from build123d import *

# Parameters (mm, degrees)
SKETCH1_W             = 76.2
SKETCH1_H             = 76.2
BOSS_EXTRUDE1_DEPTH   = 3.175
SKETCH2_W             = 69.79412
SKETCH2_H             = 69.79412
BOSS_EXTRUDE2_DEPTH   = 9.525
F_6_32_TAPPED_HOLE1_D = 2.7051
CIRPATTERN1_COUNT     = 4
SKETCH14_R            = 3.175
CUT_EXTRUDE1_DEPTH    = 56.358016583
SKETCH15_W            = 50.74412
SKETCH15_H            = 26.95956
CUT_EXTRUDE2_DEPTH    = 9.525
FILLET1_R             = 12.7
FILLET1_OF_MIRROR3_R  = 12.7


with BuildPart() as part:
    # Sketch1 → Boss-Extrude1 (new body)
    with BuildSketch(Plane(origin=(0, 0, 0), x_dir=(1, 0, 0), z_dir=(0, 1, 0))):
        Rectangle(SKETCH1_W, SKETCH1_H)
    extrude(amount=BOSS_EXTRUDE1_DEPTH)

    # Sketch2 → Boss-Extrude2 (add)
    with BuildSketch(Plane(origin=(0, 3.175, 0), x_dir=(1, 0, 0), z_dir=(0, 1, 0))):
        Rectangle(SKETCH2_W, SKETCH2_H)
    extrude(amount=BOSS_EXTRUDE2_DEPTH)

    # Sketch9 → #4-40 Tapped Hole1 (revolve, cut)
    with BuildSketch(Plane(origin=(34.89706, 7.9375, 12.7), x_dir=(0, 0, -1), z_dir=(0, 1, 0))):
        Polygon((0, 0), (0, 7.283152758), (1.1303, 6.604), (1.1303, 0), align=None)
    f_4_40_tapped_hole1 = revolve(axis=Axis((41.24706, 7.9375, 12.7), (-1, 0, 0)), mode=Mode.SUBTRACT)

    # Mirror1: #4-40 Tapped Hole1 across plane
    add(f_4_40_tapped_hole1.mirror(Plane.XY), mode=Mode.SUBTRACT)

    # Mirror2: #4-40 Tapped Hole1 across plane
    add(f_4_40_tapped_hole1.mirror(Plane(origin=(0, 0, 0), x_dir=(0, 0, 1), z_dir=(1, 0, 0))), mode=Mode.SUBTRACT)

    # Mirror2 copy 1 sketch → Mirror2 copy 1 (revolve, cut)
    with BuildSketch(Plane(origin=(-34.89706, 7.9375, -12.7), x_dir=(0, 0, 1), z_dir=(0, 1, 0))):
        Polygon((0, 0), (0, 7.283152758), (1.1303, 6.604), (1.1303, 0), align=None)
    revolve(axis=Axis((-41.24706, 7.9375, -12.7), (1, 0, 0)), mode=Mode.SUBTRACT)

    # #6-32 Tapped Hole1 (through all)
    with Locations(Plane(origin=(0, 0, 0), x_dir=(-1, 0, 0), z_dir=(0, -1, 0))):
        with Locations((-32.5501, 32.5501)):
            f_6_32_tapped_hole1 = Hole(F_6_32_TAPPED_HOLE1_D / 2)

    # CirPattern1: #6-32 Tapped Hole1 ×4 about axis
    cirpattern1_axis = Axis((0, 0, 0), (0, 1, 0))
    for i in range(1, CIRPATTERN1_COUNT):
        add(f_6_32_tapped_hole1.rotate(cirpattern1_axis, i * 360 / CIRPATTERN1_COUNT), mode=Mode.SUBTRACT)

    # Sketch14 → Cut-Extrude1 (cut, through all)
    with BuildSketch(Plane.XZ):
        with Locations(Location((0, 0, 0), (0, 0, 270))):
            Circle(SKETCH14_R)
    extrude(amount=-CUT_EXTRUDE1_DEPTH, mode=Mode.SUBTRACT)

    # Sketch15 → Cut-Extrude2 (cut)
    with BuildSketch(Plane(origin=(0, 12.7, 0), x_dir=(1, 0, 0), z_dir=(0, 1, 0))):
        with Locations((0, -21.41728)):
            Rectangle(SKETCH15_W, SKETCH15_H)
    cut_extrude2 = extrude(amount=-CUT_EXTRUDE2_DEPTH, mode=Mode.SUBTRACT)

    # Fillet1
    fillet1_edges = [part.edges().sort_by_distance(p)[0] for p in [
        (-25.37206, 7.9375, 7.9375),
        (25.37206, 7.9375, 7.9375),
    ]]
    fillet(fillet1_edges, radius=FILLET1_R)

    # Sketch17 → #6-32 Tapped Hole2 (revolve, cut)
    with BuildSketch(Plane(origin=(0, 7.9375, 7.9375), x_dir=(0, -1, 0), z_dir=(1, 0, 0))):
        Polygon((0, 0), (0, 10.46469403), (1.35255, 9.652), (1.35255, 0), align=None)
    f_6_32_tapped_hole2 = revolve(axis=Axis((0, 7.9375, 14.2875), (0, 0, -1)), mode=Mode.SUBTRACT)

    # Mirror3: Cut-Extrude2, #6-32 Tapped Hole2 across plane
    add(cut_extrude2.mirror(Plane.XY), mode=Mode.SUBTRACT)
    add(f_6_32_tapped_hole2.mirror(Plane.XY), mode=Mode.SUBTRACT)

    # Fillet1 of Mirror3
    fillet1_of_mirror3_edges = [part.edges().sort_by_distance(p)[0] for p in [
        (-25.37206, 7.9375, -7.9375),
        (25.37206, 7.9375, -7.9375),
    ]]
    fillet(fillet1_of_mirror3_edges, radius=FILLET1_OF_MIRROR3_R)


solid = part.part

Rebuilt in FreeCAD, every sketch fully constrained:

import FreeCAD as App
import Part
import Sketcher
from FreeCAD import Vector
Q = App.Units.Quantity


def edges_at(feature, points):
    """Names of the edges that pass closest to the given points."""
    edges = feature.Shape.Edges
    near = lambda p: min(range(len(edges)), key=lambda i: edges[i].distToShape(Part.Vertex(*p))[0])
    return sorted({f"Edge{near(p) + 1}" for p in points})

doc = App.newDocument("Part")
body = doc.addObject("PartDesign::Body", "Body")

sketch1 = body.newObject("Sketcher::SketchObject", "Sketch")
sketch1.AttachmentSupport = (doc.getObject("XZ_Plane"), [""])
sketch1.MapMode = "FlatFace"
sketch1.addGeometry([
    Part.LineSegment(Vector(-38.1, -38.1, 0), Vector(-38.1, 38.1, 0)),
    Part.LineSegment(Vector(-38.1, 38.1, 0), Vector(38.1, 38.1, 0)),
    Part.LineSegment(Vector(38.1, 38.1, 0), Vector(38.1, -38.1, 0)),
    Part.LineSegment(Vector(38.1, -38.1, 0), Vector(-38.1, -38.1, 0)),
], False)
sketch1.addConstraint([
    Sketcher.Constraint("Coincident", 0, 2, 1, 1),
    Sketcher.Constraint("Coincident", 1, 2, 2, 1),
    Sketcher.Constraint("Coincident", 2, 2, 3, 1),
    Sketcher.Constraint("Coincident", 3, 2, 0, 1),
    Sketcher.Constraint("Vertical", 0),
    Sketcher.Constraint("Horizontal", 1),
    Sketcher.Constraint("Vertical", 2),
    Sketcher.Constraint("Horizontal", 3),
    Sketcher.Constraint("Symmetric", 0, 2, 2, 2, -1, 1),
    Sketcher.Constraint("Equal", 3, 0),
    Sketcher.Constraint("DistanceX", 1, 1, 1, 2, Q("3 in")),
])
pad1 = body.newObject("PartDesign::Pad", "Pad")
pad1.Profile = sketch1
pad1.Length = Q("0.125 in")
pad1.Reversed = True

sketch2 = body.newObject("Sketcher::SketchObject", "Sketch001")
sketch2.AttachmentSupport = (doc.getObject("XZ_Plane"), [""])
sketch2.MapMode = "FlatFace"
sketch2.AttachmentOffset = App.Placement(Vector(0, 0, -0.125 * 25.4), App.Rotation())
sketch2.addGeometry([
    Part.LineSegment(Vector(-34.89706, -34.89706, 0), Vector(-34.89706, 34.89706, 0)),
    Part.LineSegment(Vector(-34.89706, 34.89706, 0), Vector(34.89706, 34.89706, 0)),
    Part.LineSegment(Vector(34.89706, 34.89706, 0), Vector(34.89706, -34.89706, 0)),
    Part.LineSegment(Vector(34.89706, -34.89706, 0), Vector(-34.89706, -34.89706, 0)),
], False)
sketch2.addConstraint([
    Sketcher.Constraint("Coincident", 0, 2, 1, 1),
    Sketcher.Constraint("Coincident", 1, 2, 2, 1),
    Sketcher.Constraint("Coincident", 2, 2, 3, 1),
    Sketcher.Constraint("Coincident", 3, 2, 0, 1),
    Sketcher.Constraint("Vertical", 0),
    Sketcher.Constraint("Horizontal", 1),
    Sketcher.Constraint("Vertical", 2),
    Sketcher.Constraint("Horizontal", 3),
    Sketcher.Constraint("Symmetric", 0, 2, 2, 2, -1, 1),
    Sketcher.Constraint("Equal", 3, 0),
    Sketcher.Constraint("DistanceX", 1, 1, 1, 2, Q("2.7478 in")),
])
pad2 = body.newObject("PartDesign::Pad", "Pad001")
pad2.Profile = sketch2
pad2.Length = Q("0.375 in")
pad2.Reversed = True

sketch3 = body.newObject("Sketcher::SketchObject", "Sketch002")
sketch3.AttachmentSupport = (doc.getObject("XZ_Plane"), [""])
sketch3.MapMode = "FlatFace"
sketch3.AttachmentOffset = App.Placement(Vector(0, 0, -0.3125 * 25.4), App.Rotation())
sketch3.addGeometry([
    Part.LineSegment(Vector(27.613907, 12.7, 0), Vector(34.89706, 12.7, 0)),
    Part.LineSegment(Vector(34.89706, 12.7, 0), Vector(34.89706, 11.5697, 0)),
    Part.LineSegment(Vector(34.89706, 11.5697, 0), Vector(28.29306, 11.5697, 0)),
    Part.LineSegment(Vector(28.29306, 11.5697, 0), Vector(27.613907, 12.7, 0)),
], False)
sketch3.addGeometry(Part.LineSegment(Vector(34.89706, 12.7, 0), Vector(27.613907, 12.7, 0)), True)
sketch3.addConstraint([
    Sketcher.Constraint("Coincident", 0, 2, 1, 1),
    Sketcher.Constraint("Coincident", 1, 2, 2, 1),
    Sketcher.Constraint("Coincident", 2, 2, 3, 1),
    Sketcher.Constraint("Coincident", 3, 2, 0, 1),
    Sketcher.Constraint("Horizontal", 0),
    Sketcher.Constraint("Vertical", 1),
    Sketcher.Constraint("Horizontal", 2),
    Sketcher.Constraint("Horizontal", 4),
    Sketcher.Constraint("Coincident", 4, 1, 0, 2),
    Sketcher.Constraint("Equal", 0, 4),
    Sketcher.Constraint("Angle", 3, Q("121 deg")),
    Sketcher.Constraint("DistanceX", 2, 2, 2, 1, Q("0.26 in")),
    Sketcher.Constraint("DistanceY", -1, 1, 0, 2, Q("0.5 in")),
    Sketcher.Constraint("DistanceY", 1, 2, 1, 1, Q("0.0445 in")),
    Sketcher.Constraint("DistanceX", -1, 1, 0, 2, Q("1.3739 in")),
])
groove = body.newObject("PartDesign::Groove", "Groove")
groove.Profile = sketch3
groove.ReferenceAxis = (sketch3, ["Axis0"])
groove.Angle = 360
doc.recompute()

mirrored = body.newObject("PartDesign::Mirrored", "Mirrored")
mirrored.Originals = [groove]
mirrored.MirrorPlane = (doc.getObject("XY_Plane"), [""])
body.Tip = mirrored
doc.recompute()

mirrored2 = body.newObject("PartDesign::Mirrored", "Mirrored001")
mirrored2.Originals = [groove]
mirrored2.MirrorPlane = (doc.getObject("YZ_Plane"), [""])
body.Tip = mirrored2

sketch4 = body.newObject("Sketcher::SketchObject", "Sketch003")
sketch4.AttachmentSupport = (doc.getObject("XZ_Plane"), [""])
sketch4.MapMode = "FlatFace"
sketch4.AttachmentOffset = App.Placement(Vector(0, 0, -0.3125 * 25.4), App.Rotation())
sketch4.addGeometry([
    Part.LineSegment(Vector(-27.613907, -12.7, 0), Vector(-34.89706, -12.7, 0)),
    Part.LineSegment(Vector(-34.89706, -12.7, 0), Vector(-34.89706, -11.5697, 0)),
    Part.LineSegment(Vector(-34.89706, -11.5697, 0), Vector(-28.29306, -11.5697, 0)),
    Part.LineSegment(Vector(-28.29306, -11.5697, 0), Vector(-27.613907, -12.7, 0)),
], False)
sketch4.addGeometry(Part.LineSegment(Vector(-34.89706, -12.7, 0), Vector(-27.613907, -12.7, 0)), True)
sketch4.addConstraint([
    Sketcher.Constraint("Coincident", 0, 2, 1, 1),
    Sketcher.Constraint("Coincident", 1, 2, 2, 1),
    Sketcher.Constraint("Coincident", 2, 2, 3, 1),
    Sketcher.Constraint("Coincident", 3, 2, 0, 1),
    Sketcher.Constraint("Horizontal", 0),
    Sketcher.Constraint("Vertical", 1),
    Sketcher.Constraint("Horizontal", 2),
    Sketcher.Constraint("Horizontal", 4),
    Sketcher.Constraint("Coincident", 4, 1, 0, 2),
    Sketcher.Constraint("Equal", 0, 4),
    Sketcher.Constraint("Angle", 3, Q("-59 deg")),
    Sketcher.Constraint("DistanceX", 2, 1, 2, 2, Q("0.26 in")),
    Sketcher.Constraint("DistanceY", 0, 2, -1, 1, Q("0.5 in")),
    Sketcher.Constraint("DistanceY", 1, 1, 1, 2, Q("0.0445 in")),
    Sketcher.Constraint("DistanceX", 0, 2, -1, 1, Q("1.3739 in")),
])
groove2 = body.newObject("PartDesign::Groove", "Groove001")
groove2.Profile = sketch4
groove2.ReferenceAxis = (sketch4, ["Axis0"])
groove2.Angle = 360

sketch5 = body.newObject("Sketcher::SketchObject", "Sketch004")
sketch5.AttachmentSupport = (doc.getObject("XZ_Plane"), [""])
sketch5.MapMode = "FlatFace"
sketch5.addGeometry(Part.Circle(Vector(32.5501, -32.5501, 0), Vector(0, 0, 1), 1.35255), False)
sketch5.addConstraint([
    Sketcher.Constraint("Diameter", 0, Q("0.1065 in")),
    Sketcher.Constraint("DistanceX", -1, 1, 0, 3, Q("1.2815 in")),
    Sketcher.Constraint("DistanceY", 0, 3, -1, 1, Q("1.2815 in")),
])
doc.recompute()
hole = body.newObject("PartDesign::Hole", "Hole")
hole.Profile = sketch5
hole.ThreadType = "None"
hole.Diameter = Q("0.1065 in")
hole.DepthType = "ThroughAll"
doc.recompute()

polarpattern = body.newObject("PartDesign::PolarPattern", "PolarPattern")
polarpattern.Originals = [hole]
polarpattern.Axis = (doc.getObject("Y_Axis"), [""])
polarpattern.Angle = 360
polarpattern.Occurrences = 4
body.Tip = polarpattern

sketch6 = body.newObject("Sketcher::SketchObject", "Sketch005")
sketch6.AttachmentSupport = (doc.getObject("XZ_Plane"), [""])
sketch6.MapMode = "FlatFace"
sketch6.addGeometry(Part.Circle(Vector(0, 0, 0), Vector(0, 0, 1), 3.175), False)
sketch6.addConstraint([
    Sketcher.Constraint("Coincident", 0, 3, -1, 1),
    Sketcher.Constraint("Diameter", 0, Q("0.25 in")),
])
pocket1 = body.newObject("PartDesign::Pocket", "Pocket")
pocket1.Profile = sketch6
pocket1.Type = "ThroughAll"

sketch7 = body.newObject("Sketcher::SketchObject", "Sketch006")
sketch7.AttachmentSupport = (doc.getObject("XZ_Plane"), [""])
sketch7.MapMode = "FlatFace"
sketch7.AttachmentOffset = App.Placement(Vector(0, 0, -0.5 * 25.4), App.Rotation())
sketch7.addGeometry([
    Part.LineSegment(Vector(-25.37206, 7.9375, 0), Vector(-25.37206, 34.89706, 0)),
    Part.LineSegment(Vector(-25.37206, 34.89706, 0), Vector(25.37206, 34.89706, 0)),
    Part.LineSegment(Vector(25.37206, 34.89706, 0), Vector(25.37206, 7.9375, 0)),
    Part.LineSegment(Vector(25.37206, 7.9375, 0), Vector(-25.37206, 7.9375, 0)),
], False)
sketch7.addConstraint([
    Sketcher.Constraint("Coincident", 0, 2, 1, 1),
    Sketcher.Constraint("Coincident", 1, 2, 2, 1),
    Sketcher.Constraint("Coincident", 2, 2, 3, 1),
    Sketcher.Constraint("Coincident", 3, 2, 0, 1),
    Sketcher.Constraint("Vertical", 0),
    Sketcher.Constraint("Horizontal", 1),
    Sketcher.Constraint("Vertical", 2),
    Sketcher.Constraint("Horizontal", 3),
    Sketcher.Constraint("DistanceX", 1, 1, 1, 2, Q("1.9978 in")),
    Sketcher.Constraint("DistanceY", 0, 1, 0, 2, Q("1.0614 in")),
    Sketcher.Constraint("DistanceY", -1, 1, 2, 2, Q("0.3125 in")),
    Sketcher.Constraint("DistanceX", 0, 2, -1, 1, Q("0.9989 in")),
])
pocket2 = body.newObject("PartDesign::Pocket", "Pocket001")
pocket2.Profile = sketch7
pocket2.Length = Q("0.375 in")
pocket2.Reversed = True
doc.recompute()

fillet = body.newObject("PartDesign::Fillet", "Fillet")
fillet.Base = (pocket2, edges_at(pocket2, [(-25.372, 7.938, 7.938), (25.372, 7.938, 7.938)]))
fillet.Radius = Q("0.5 in")

sketch8 = body.newObject("Sketcher::SketchObject", "Sketch007")
sketch8.AttachmentSupport = (doc.getObject("YZ_Plane"), [""])
sketch8.MapMode = "FlatFace"
sketch8.addGeometry([
    Part.LineSegment(Vector(7.9375, -2.527194, 0), Vector(7.9375, 7.9375, 0)),
    Part.LineSegment(Vector(7.9375, 7.9375, 0), Vector(6.58495, 7.9375, 0)),
    Part.LineSegment(Vector(6.58495, 7.9375, 0), Vector(6.58495, -1.7145, 0)),
    Part.LineSegment(Vector(6.58495, -1.7145, 0), Vector(7.9375, -2.527194, 0)),
], False)
sketch8.addGeometry(Part.LineSegment(Vector(7.9375, 7.9375, 0), Vector(7.9375, -2.527194, 0)), True)
sketch8.addConstraint([
    Sketcher.Constraint("Coincident", 0, 2, 1, 1),
    Sketcher.Constraint("Coincident", 1, 2, 2, 1),
    Sketcher.Constraint("Coincident", 2, 2, 3, 1),
    Sketcher.Constraint("Coincident", 3, 2, 0, 1),
    Sketcher.Constraint("Vertical", 0),
    Sketcher.Constraint("Horizontal", 1),
    Sketcher.Constraint("Vertical", 2),
    Sketcher.Constraint("Vertical", 4),
    Sketcher.Constraint("Coincident", 4, 1, 0, 2),
    Sketcher.Constraint("Equal", 0, 4),
    Sketcher.Constraint("Angle", 3, Q("-31 deg")),
    Sketcher.Constraint("DistanceY", 2, 2, 2, 1, Q("0.38 in")),
    Sketcher.Constraint("DistanceX", -1, 1, 0, 2, Q("0.3125 in")),
    Sketcher.Constraint("DistanceY", -1, 1, 0, 2, Q("0.3125 in")),
    Sketcher.Constraint("DistanceX", 1, 2, 1, 1, Q("1.35255 mm")),
])
groove3 = body.newObject("PartDesign::Groove", "Groove002")
groove3.Profile = sketch8
groove3.ReferenceAxis = (sketch8, ["Axis0"])
groove3.Angle = 360
doc.recompute()

mirrored3 = body.newObject("PartDesign::Mirrored", "Mirrored002")
mirrored3.Originals = [pocket2, groove3]
mirrored3.MirrorPlane = (doc.getObject("XY_Plane"), [""])
body.Tip = mirrored3
doc.recompute()

fillet2 = body.newObject("PartDesign::Fillet", "Fillet001")
fillet2.Base = (mirrored3, edges_at(mirrored3, [(-25.372, 7.938, -7.938), (25.372, 7.938, -7.938)]))
fillet2.Radius = Q("0.5 in")

doc.recompute()
